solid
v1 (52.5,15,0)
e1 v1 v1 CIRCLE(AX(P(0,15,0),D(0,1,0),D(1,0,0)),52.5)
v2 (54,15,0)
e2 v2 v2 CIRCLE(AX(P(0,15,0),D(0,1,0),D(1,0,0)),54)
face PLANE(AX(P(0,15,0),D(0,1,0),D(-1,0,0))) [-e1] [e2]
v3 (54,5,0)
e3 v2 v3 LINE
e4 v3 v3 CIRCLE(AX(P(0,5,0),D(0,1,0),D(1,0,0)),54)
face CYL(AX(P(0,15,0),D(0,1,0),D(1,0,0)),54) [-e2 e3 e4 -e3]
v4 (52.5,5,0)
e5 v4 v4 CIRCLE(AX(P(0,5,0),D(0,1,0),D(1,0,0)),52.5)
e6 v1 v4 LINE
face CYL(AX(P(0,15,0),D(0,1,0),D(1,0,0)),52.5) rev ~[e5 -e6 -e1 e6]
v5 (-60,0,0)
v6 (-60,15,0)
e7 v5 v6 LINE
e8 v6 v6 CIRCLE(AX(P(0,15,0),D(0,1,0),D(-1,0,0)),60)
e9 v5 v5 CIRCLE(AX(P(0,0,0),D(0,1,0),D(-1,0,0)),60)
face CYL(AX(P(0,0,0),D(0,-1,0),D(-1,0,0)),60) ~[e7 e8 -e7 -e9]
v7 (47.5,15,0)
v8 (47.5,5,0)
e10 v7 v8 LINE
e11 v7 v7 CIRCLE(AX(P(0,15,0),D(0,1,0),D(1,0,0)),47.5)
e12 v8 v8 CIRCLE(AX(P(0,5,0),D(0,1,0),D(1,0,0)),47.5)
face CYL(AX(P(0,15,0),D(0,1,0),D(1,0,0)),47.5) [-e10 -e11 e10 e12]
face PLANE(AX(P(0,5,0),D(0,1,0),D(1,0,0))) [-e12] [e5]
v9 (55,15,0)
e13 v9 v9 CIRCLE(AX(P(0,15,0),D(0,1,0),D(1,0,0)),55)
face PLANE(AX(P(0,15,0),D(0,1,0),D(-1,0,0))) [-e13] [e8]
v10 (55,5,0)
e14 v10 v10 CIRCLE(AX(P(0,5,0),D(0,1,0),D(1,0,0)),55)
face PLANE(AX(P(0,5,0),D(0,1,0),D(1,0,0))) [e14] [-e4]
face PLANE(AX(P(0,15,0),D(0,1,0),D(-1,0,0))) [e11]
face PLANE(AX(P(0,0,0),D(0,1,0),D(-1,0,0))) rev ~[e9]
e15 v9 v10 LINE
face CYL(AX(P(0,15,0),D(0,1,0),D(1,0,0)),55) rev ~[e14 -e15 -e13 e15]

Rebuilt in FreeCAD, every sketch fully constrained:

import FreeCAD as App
import Part
import Sketcher

doc = App.newDocument("Part")
body = doc.addObject("PartDesign::Body", "Body")

# Sketch on XZ plane
sketch1 = doc.addObject("Sketcher::SketchObject", "Sketch")
body.addObject(sketch1)
sketch1.AttachmentSupport = (doc.XZ_Plane, [""])
sketch1.MapMode = "FlatFace"
sketch1.addGeometry(Part.Circle(App.Vector(0, 0, 0), App.Vector(0, 0, 1), 60), False)
sketch1.addConstraint([
    Sketcher.Constraint("Coincident", 0, 3, -1, 1),
    Sketcher.Constraint("Diameter", 0, 120.0),
])
pad1 = doc.addObject("PartDesign::Pad", "Pad")
body.addObject(pad1)
pad1.Profile = sketch1
pad1.Length = 15
pad1.Reversed = True

# Sketch on XZ plane
sketch2 = doc.addObject("Sketcher::SketchObject", "Sketch001")
body.addObject(sketch2)
sketch2.AttachmentSupport = (doc.XZ_Plane, [""])
sketch2.MapMode = "FlatFace"
sketch2.AttachmentOffset = App.Placement(App.Vector(0, 0, -15), App.Rotation())
sketch2.addGeometry([
    Part.Circle(App.Vector(0, 0, 0), App.Vector(0, 0, 1), 52),
    Part.Circle(App.Vector(0, 0, 0), App.Vector(0, 0, 1), 48),
], False)
sketch2.addConstraint([
    Sketcher.Constraint("Coincident", 0, 3, -1, 1),
    Sketcher.Constraint("Coincident", 1, 3, -1, 1),
    Sketcher.Constraint("Diameter", 0, 105.0),
    Sketcher.Constraint("Diameter", 1, 95.0),
])
pocket1 = doc.addObject("PartDesign::Pocket", "Pocket")
body.addObject(pocket1)
pocket1.Profile = sketch2
pocket1.Length = 10
pocket1.Reversed = True

# Sketch on XZ plane
sketch3 = doc.addObject("Sketcher::SketchObject", "Sketch002")
body.addObject(sketch3)
sketch3.AttachmentSupport = (doc.XZ_Plane, [""])
sketch3.MapMode = "FlatFace"
sketch3.AttachmentOffset = App.Placement(App.Vector(0, 0, -15), App.Rotation())
sketch3.addGeometry([
    Part.Circle(App.Vector(0, 0, 0), App.Vector(0, 0, 1), 55),
    Part.Circle(App.Vector(0, 0, 0), App.Vector(0, 0, 1), 54),
], False)
sketch3.addConstraint([
    Sketcher.Constraint("Coincident", 0, 3, -1, 1),
    Sketcher.Constraint("Coincident", 1, 3, -1, 1),
    Sketcher.Constraint("Diameter", 0, 110.0),
    Sketcher.Constraint("Diameter", 1, 108.0),
])
pocket2 = doc.addObject("PartDesign::Pocket", "Pocket001")
body.addObject(pocket2)
pocket2.Profile = sketch3
pocket2.Length = 10
pocket2.Reversed = True

doc.recompute()
